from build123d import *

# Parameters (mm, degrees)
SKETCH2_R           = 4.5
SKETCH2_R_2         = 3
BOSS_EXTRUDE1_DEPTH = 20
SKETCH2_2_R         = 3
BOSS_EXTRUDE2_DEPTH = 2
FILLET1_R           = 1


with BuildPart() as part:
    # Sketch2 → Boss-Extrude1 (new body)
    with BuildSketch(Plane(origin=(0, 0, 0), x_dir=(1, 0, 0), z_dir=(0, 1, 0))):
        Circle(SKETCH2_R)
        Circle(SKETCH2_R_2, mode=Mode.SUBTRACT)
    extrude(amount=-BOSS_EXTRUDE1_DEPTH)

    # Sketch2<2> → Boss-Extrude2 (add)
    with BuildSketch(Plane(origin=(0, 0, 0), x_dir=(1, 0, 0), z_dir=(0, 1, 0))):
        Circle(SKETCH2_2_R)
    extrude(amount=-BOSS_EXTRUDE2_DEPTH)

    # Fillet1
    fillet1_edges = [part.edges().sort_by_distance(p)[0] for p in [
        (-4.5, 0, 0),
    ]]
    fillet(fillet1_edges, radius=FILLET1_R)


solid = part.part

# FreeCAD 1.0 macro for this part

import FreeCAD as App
import Part
import Sketcher
Q = App.Units.Quantity


def edges_at(feature, points):
    """Names of the edges that pass closest to the given points."""
    edges = feature.Shape.Edges
    near = lambda p: min(range(len(edges)), key=lambda i: edges[i].distToShape(Part.Vertex(*p))[0])
    return sorted({f"Edge{near(p) + 1}" for p in points})

doc = App.newDocument("Part")
body = doc.addObject("PartDesign::Body", "Body")

# Sketch on XZ plane
sketch1 = body.newObject("Sketcher::SketchObject", "Sketch")
sketch1.AttachmentSupport = (doc.getObject("XZ_Plane"), [""])
sketch1.MapMode = "FlatFace"
sketch1.addGeometry([
    Part.Circle(App.Vector(0, 0, 0), App.Vector(0, 0, 1), 4.5),
    Part.Circle(App.Vector(0, 0, 0), App.Vector(0, 0, 1), 3),
], False)
sketch1.addConstraint([
    Sketcher.Constraint("Coincident", 0, 3, -1, 1),
    Sketcher.Constraint("Coincident", 1, 3, -1, 1),
    Sketcher.Constraint("Diameter", 0, Q("9 mm")),
    Sketcher.Constraint("Diameter", 1, Q("6 mm")),
])
pad1 = body.newObject("PartDesign::Pad", "Pad")
pad1.Profile = sketch1
pad1.Length = 20

# Sketch on XZ plane
sketch2 = body.newObject("Sketcher::SketchObject", "Sketch001")
sketch2.AttachmentSupport = (doc.getObject("XZ_Plane"), [""])
sketch2.MapMode = "FlatFace"
sketch2.addGeometry(Part.Circle(App.Vector(0, 0, 0), App.Vector(0, 0, 1), 3), False)
sketch2.addConstraint([
    Sketcher.Constraint("Coincident", 0, 3, -1, 1),
    Sketcher.Constraint("Diameter", 0, Q("6 mm")),
])
pad2 = body.newObject("PartDesign::Pad", "Pad001")
pad2.Profile = sketch2
pad2.Length = 2
doc.recompute()

fillet = body.newObject("PartDesign::Fillet", "Fillet")
fillet.Base = (pad2, edges_at(pad2, [(-4.5, 0, 0)]))
fillet.Radius = 1

doc.recompute()
